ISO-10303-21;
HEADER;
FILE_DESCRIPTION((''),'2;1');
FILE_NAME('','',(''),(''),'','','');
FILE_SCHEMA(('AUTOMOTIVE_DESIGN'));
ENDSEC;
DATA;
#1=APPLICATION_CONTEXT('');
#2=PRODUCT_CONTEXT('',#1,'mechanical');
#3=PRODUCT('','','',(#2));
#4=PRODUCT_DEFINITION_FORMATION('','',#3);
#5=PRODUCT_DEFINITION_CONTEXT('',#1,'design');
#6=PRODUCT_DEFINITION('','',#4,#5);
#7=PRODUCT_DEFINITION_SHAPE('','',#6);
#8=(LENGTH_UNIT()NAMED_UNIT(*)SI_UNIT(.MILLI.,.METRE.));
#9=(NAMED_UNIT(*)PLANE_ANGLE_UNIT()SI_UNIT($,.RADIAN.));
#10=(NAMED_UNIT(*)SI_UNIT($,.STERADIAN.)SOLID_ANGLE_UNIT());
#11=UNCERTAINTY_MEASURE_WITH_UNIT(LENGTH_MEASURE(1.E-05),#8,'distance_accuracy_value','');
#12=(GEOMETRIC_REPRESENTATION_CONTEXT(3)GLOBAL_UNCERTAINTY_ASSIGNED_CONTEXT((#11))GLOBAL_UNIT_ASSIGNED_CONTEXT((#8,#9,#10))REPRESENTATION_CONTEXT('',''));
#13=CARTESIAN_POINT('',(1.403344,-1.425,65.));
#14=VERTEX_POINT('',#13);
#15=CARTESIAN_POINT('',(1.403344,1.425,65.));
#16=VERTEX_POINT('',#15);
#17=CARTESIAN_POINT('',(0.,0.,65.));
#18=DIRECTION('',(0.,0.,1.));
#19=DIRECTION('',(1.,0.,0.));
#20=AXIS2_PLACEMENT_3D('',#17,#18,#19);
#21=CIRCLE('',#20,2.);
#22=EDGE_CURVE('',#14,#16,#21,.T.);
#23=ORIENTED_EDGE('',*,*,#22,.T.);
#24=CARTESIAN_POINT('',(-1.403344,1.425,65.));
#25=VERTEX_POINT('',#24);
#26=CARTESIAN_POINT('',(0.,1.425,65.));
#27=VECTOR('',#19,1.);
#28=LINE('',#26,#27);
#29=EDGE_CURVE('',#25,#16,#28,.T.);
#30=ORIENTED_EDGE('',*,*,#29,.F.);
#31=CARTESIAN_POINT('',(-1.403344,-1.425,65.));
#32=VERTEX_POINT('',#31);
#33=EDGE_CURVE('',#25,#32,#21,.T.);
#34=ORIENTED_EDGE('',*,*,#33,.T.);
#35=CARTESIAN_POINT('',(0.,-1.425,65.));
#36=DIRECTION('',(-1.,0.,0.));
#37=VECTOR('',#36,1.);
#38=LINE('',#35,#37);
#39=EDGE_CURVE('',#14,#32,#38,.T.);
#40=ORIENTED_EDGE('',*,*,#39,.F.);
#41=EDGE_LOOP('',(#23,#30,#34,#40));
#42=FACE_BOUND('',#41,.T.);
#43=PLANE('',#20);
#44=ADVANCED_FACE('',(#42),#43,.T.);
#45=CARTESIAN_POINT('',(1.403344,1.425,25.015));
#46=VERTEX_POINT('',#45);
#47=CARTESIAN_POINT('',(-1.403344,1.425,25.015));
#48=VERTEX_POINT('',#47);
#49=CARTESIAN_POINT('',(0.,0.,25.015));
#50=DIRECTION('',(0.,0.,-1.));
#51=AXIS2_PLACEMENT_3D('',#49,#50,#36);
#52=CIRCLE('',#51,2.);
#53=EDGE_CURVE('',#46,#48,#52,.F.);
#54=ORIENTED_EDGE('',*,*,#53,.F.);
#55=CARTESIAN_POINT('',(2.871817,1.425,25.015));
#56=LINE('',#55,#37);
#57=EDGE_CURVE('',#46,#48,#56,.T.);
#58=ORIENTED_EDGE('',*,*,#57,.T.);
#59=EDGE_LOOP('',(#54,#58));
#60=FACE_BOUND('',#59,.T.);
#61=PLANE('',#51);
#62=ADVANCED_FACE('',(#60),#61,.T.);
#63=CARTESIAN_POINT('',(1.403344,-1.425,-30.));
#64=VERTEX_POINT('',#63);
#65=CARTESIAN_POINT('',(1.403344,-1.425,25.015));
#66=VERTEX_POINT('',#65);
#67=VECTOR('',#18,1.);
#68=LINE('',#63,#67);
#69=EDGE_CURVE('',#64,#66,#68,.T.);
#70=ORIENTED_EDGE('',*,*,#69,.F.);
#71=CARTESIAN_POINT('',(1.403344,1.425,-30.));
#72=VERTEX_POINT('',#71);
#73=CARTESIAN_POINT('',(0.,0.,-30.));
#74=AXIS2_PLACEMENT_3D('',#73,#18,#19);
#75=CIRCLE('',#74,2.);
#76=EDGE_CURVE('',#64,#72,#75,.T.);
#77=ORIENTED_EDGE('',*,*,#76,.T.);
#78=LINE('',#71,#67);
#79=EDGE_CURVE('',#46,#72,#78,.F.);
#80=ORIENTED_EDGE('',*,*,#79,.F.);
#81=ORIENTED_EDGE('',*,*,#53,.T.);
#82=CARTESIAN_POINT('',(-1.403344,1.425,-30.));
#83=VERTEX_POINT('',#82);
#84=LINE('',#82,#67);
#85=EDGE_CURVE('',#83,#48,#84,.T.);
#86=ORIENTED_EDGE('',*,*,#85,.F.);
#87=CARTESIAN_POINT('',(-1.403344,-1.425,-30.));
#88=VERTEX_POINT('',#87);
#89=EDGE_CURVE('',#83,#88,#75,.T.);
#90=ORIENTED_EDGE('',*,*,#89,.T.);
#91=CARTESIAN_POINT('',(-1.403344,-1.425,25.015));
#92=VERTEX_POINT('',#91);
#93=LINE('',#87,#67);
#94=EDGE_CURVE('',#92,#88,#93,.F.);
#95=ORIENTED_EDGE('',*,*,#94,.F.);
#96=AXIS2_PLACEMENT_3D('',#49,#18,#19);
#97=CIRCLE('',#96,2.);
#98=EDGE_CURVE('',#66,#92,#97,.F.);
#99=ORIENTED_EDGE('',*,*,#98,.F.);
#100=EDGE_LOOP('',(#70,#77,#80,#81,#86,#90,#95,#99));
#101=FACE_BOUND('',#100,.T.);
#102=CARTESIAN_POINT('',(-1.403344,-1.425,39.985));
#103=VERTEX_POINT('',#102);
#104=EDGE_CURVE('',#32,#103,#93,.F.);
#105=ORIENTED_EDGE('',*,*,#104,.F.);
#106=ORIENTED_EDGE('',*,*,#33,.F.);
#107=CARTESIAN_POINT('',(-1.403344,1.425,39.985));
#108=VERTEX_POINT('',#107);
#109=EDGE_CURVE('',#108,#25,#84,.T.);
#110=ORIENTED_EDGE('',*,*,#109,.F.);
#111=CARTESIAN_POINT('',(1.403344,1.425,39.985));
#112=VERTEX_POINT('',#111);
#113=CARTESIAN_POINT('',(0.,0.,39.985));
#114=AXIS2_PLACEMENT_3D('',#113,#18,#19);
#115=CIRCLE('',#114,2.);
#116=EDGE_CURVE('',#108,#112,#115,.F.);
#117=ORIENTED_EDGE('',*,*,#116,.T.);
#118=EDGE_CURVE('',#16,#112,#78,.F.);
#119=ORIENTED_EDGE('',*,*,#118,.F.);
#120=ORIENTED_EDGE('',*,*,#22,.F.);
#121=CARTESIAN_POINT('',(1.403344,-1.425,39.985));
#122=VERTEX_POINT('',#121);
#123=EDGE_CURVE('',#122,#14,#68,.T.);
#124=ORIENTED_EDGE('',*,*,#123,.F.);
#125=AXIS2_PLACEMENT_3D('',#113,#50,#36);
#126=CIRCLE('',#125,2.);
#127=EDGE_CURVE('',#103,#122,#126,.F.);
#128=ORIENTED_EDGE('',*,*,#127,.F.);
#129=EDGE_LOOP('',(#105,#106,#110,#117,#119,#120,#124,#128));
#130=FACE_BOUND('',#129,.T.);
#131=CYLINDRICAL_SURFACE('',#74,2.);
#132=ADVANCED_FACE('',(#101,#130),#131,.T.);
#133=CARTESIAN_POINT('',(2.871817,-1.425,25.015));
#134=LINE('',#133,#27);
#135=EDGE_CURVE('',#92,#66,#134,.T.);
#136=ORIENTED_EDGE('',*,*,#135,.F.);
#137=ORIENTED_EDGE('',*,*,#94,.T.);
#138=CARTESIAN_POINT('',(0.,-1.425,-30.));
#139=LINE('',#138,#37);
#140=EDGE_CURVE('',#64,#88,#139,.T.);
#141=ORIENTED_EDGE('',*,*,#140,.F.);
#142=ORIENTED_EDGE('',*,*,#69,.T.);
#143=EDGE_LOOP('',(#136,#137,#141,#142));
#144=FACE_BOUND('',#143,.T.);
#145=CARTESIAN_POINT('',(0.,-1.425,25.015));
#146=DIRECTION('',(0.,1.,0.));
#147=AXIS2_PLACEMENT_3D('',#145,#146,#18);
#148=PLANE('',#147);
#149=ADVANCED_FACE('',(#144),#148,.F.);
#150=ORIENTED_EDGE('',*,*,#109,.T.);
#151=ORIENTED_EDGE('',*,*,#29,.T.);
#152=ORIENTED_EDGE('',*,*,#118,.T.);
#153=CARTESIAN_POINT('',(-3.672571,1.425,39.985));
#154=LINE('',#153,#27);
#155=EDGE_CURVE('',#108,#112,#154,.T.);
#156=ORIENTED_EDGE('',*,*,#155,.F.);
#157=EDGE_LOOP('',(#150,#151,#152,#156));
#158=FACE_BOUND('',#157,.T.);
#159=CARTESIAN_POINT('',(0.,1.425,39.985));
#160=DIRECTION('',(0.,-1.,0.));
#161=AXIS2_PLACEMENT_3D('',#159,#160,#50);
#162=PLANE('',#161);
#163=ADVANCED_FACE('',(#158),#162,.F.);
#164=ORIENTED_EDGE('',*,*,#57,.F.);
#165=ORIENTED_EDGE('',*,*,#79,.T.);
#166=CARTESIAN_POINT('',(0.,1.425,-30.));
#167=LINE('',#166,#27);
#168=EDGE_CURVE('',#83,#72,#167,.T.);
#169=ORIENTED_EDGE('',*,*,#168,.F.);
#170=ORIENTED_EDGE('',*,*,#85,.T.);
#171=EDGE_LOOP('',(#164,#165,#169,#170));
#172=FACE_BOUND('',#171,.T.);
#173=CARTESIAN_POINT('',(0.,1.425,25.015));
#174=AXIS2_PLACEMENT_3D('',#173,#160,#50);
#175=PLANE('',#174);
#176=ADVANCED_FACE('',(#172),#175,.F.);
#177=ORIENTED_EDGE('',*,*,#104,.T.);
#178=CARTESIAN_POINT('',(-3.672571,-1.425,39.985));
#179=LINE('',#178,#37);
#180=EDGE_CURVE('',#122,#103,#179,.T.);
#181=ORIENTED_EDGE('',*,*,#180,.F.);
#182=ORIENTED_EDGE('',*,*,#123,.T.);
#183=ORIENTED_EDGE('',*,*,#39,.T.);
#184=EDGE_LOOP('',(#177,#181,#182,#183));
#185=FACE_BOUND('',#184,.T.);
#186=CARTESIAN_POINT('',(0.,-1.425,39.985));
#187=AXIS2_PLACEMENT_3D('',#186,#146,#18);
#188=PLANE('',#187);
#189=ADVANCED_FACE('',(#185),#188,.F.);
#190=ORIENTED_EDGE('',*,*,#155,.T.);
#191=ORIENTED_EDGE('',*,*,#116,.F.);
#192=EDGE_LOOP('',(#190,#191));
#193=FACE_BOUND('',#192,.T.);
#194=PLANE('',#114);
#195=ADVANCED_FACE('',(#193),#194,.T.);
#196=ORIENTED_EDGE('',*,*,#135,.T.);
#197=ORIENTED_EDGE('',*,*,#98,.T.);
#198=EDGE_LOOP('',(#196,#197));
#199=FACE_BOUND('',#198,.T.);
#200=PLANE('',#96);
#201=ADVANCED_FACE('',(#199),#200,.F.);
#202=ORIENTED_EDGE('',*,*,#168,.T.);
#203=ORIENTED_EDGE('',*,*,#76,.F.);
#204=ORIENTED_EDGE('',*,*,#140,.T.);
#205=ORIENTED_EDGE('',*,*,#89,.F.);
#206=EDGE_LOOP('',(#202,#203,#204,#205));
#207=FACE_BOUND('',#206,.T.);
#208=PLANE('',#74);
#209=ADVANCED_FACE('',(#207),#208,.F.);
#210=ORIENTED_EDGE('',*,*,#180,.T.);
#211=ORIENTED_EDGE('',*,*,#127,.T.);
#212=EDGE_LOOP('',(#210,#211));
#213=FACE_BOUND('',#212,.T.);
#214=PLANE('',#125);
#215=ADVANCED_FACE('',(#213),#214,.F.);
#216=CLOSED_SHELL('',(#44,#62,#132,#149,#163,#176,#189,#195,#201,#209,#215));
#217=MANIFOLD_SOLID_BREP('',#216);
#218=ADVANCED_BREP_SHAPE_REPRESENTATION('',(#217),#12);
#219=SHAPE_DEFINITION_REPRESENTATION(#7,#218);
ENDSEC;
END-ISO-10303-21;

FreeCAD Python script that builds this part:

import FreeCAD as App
import Part
import Sketcher
from FreeCAD import Vector


def add_polygon(sketch, points):
    """Adds a closed chain of lines whose ends are joined by coincident constraints."""
    first, n = sketch.GeometryCount, len(points)
    for a, b in zip(points, points[1:] + points[:1]):
        sketch.addGeometry(Part.LineSegment(App.Vector(*a, 0), App.Vector(*b, 0)), False)
    for i in range(n):
        sketch.addConstraint(Sketcher.Constraint("Coincident", first + i, 2, first + (i + 1) % n, 1))

doc = App.newDocument("Part")
body = doc.addObject("PartDesign::Body", "Body")

sketch1 = body.newObject("Sketcher::SketchObject", "Sketch")
sketch1.AttachmentSupport = (doc.getObject("XY_Plane"), [""])
sketch1.MapMode = "FlatFace"
sketch1.addGeometry(Part.Circle(Vector(0, 0, 0), Vector(0, 0, 1), 2), False)
sketch1.addConstraint([
    Sketcher.Constraint("Coincident", 0, 3, -1, 1),
    Sketcher.Constraint("Diameter", 0, 4.0),
])
pad1 = body.newObject("PartDesign::Pad", "Pad")
pad1.Profile = sketch1
pad1.Type = "TwoLengths"
pad1.Length = 65
pad1.Length2 = 30

sketch2 = body.newObject("Sketcher::SketchObject", "Sketch001")
sketch2.AttachmentSupport = (doc.getObject("XY_Plane"), [""])
sketch2.MapMode = "FlatFace"
sketch2.AttachmentOffset = App.Placement(Vector(0, 0, 65), App.Rotation())
add_polygon(sketch2, [(2.691542, 1.425), (2.691542, 2.754429), (-3.672571, 2.754429), (-3.672571, 1.425)])
add_polygon(sketch2, [(2.691542, -1.425), (-3.672571, -1.425), (-3.672571, -2.855047), (2.691542, -2.855047)])
sketch2.addConstraint([
    Sketcher.Constraint("Vertical", 0),
    Sketcher.Constraint("Horizontal", 1),
    Sketcher.Constraint("Vertical", 2),
    Sketcher.Constraint("Horizontal", 3),
    Sketcher.Constraint("Horizontal", 4),
    Sketcher.Constraint("Vertical", 5),
    Sketcher.Constraint("Horizontal", 6),
    Sketcher.Constraint("Vertical", 7),
    Sketcher.Constraint("Symmetric", 2, 2, 4, 2, -1),
    Sketcher.Constraint("Vertical", 3, 2, 6, 2),
    Sketcher.Constraint("DistanceY", 4, 2, 2, 2, 2.85),
    Sketcher.Constraint("DistanceY", 0, 1, 0, 2, 1.329429),
    Sketcher.Constraint("DistanceX", 1, 2, 1, 1, 6.364114),
    Sketcher.Constraint("DistanceY", 5, 2, 5, 1, 1.430047),
    Sketcher.Constraint("DistanceX", 1, 2, -1, 1, 3.672571),
])
pocket1 = body.newObject("PartDesign::Pocket", "Pocket")
pocket1.Profile = sketch2
pocket1.Length = 25.015

sketch3 = body.newObject("Sketcher::SketchObject", "Sketch002")
sketch3.AttachmentSupport = (doc.getObject("XY_Plane"), [""])
sketch3.MapMode = "FlatFace"
sketch3.AttachmentOffset = App.Placement(Vector(0, 0, -30), App.Rotation())
add_polygon(sketch3, [(-2.641233, 1.425), (-2.641233, 2.588828), (2.871817, 2.588828), (2.871817, 1.425)])
add_polygon(sketch3, [(-2.641233, -1.425), (2.871817, -1.425), (2.871817, -2.693638), (-2.641233, -2.693638)])
sketch3.addConstraint([
    Sketcher.Constraint("Vertical", 0),
    Sketcher.Constraint("Horizontal", 1),
    Sketcher.Constraint("Vertical", 2),
    Sketcher.Constraint("Horizontal", 3),
    Sketcher.Constraint("Horizontal", 4),
    Sketcher.Constraint("Vertical", 5),
    Sketcher.Constraint("Horizontal", 6),
    Sketcher.Constraint("Vertical", 7),
    Sketcher.Constraint("Symmetric", 2, 2, 4, 2, -1),
    Sketcher.Constraint("Vertical", 3, 2, 6, 2),
    Sketcher.Constraint("DistanceY", 4, 2, 2, 2, 2.85),
    Sketcher.Constraint("DistanceX", 1, 1, 1, 2, 5.51305),
    Sketcher.Constraint("DistanceY", 5, 2, 5, 1, 1.268638),
    Sketcher.Constraint("DistanceY", 0, 1, 0, 2, 1.163828),
    Sketcher.Constraint("DistanceX", 0, 2, -1, 1, 2.641233),
])
pocket2 = body.newObject("PartDesign::Pocket", "Pocket001")
pocket2.Profile = sketch3
pocket2.Length = 55.015
pocket2.Reversed = True

doc.recompute()
